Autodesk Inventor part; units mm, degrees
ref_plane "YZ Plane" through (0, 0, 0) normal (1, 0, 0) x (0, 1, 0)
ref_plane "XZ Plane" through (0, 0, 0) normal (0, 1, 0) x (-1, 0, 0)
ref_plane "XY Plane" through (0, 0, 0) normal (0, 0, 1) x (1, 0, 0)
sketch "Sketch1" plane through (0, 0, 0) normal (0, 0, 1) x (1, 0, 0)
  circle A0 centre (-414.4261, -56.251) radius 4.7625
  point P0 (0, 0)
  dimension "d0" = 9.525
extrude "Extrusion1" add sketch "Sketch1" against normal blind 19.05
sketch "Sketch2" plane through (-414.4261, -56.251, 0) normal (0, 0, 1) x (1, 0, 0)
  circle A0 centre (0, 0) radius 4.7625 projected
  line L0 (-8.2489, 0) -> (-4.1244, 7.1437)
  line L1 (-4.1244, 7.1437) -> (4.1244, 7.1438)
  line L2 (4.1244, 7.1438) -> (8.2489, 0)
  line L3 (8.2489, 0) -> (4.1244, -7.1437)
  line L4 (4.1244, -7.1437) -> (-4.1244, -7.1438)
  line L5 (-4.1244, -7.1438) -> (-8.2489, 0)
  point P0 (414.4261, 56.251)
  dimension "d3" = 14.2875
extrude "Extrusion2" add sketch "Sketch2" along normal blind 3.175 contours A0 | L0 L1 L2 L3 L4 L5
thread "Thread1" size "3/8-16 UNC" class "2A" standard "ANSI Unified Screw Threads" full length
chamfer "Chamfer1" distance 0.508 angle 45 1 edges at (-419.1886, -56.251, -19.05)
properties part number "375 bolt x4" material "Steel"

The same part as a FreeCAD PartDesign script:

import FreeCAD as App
import Part
import Sketcher
from FreeCAD import Vector
Q = App.Units.Quantity


def edges_at(feature, points):
    """Names of the edges that pass closest to the given points."""
    edges = feature.Shape.Edges
    near = lambda p: min(range(len(edges)), key=lambda i: edges[i].distToShape(Part.Vertex(*p))[0])
    return sorted({f"Edge{near(p) + 1}" for p in points})


def add_polygon(sketch, points):
    """Adds a closed chain of lines whose ends are joined by coincident constraints."""
    first, n = sketch.GeometryCount, len(points)
    for a, b in zip(points, points[1:] + points[:1]):
        sketch.addGeometry(Part.LineSegment(App.Vector(*a, 0), App.Vector(*b, 0)), False)
    for i in range(n):
        sketch.addConstraint(Sketcher.Constraint("Coincident", first + i, 2, first + (i + 1) % n, 1))

doc = App.newDocument("Part")
body = doc.addObject("PartDesign::Body", "Body")

# Sketch on XY plane
sketch1 = doc.addObject("Sketcher::SketchObject", "Sketch")
body.addObject(sketch1)
sketch1.AttachmentSupport = (doc.XY_Plane, [""])
sketch1.MapMode = "FlatFace"
sketch1.addGeometry(Part.Circle(Vector(-414.4, -56.3, 0), Vector(0, 0, 1), 4.8), False)
sketch1.addConstraint([
    Sketcher.Constraint("Diameter", 0, Q("0.375 in")),
    Sketcher.Constraint("DistanceX", 0, 3, -1, 1, Q("16.316 in")),
    Sketcher.Constraint("DistanceY", 0, 3, -1, 1, Q("2.2146 in")),
])
pad1 = doc.addObject("PartDesign::Pad", "Pad")
body.addObject(pad1)
pad1.Profile = sketch1
pad1.Length = Q("0.75 in")
pad1.Reversed = True

# Sketch on XY plane
sketch2 = doc.addObject("Sketcher::SketchObject", "Sketch001")
body.addObject(sketch2)
sketch2.AttachmentSupport = (doc.XY_Plane, [""])
sketch2.MapMode = "FlatFace"
add_polygon(sketch2, [(-419, -49), (-423, -56), (-419, -63), (-410, -63), (-406, -56), (-410, -49)])  # lines 0-5
sketch2.addConstraint([
    Sketcher.Constraint("Horizontal", 2),
    Sketcher.Constraint("Horizontal", 5),
    Sketcher.Constraint("Parallel", 0, 3),
    Sketcher.Constraint("Parallel", 1, 4),
    Sketcher.Constraint("Horizontal", 0, 2, 3, 2),
    Sketcher.Constraint("Vertical", 2, 2, 4, 2),
    Sketcher.Constraint("Vertical", 1, 2, 5, 2),
    Sketcher.Constraint("Angle", 0, Q("-120.0005 deg")),
    Sketcher.Constraint("DistanceY", 2, 2, 4, 2, Q("0.5625 in")),
    Sketcher.Constraint("DistanceX", 2, 1, 2, 2, 8.2488),
    Sketcher.Constraint("DistanceY", 0, 2, -1, 1, Q("2.2146 in")),
    Sketcher.Constraint("DistanceX", 2, 2, -1, 1, Q("16.1536 in")),
])
pad2 = doc.addObject("PartDesign::Pad", "Pad001")
body.addObject(pad2)
pad2.Profile = sketch2
pad2.Length = Q("0.125 in")
doc.recompute()

chamfer = doc.addObject("PartDesign::Chamfer", "Chamfer")
body.addObject(chamfer)
chamfer.Base = (pad2, edges_at(pad2, [(-419.189, -56.251, -19.05)]))
chamfer.Size = Q("0.02 in")

doc.recompute()
